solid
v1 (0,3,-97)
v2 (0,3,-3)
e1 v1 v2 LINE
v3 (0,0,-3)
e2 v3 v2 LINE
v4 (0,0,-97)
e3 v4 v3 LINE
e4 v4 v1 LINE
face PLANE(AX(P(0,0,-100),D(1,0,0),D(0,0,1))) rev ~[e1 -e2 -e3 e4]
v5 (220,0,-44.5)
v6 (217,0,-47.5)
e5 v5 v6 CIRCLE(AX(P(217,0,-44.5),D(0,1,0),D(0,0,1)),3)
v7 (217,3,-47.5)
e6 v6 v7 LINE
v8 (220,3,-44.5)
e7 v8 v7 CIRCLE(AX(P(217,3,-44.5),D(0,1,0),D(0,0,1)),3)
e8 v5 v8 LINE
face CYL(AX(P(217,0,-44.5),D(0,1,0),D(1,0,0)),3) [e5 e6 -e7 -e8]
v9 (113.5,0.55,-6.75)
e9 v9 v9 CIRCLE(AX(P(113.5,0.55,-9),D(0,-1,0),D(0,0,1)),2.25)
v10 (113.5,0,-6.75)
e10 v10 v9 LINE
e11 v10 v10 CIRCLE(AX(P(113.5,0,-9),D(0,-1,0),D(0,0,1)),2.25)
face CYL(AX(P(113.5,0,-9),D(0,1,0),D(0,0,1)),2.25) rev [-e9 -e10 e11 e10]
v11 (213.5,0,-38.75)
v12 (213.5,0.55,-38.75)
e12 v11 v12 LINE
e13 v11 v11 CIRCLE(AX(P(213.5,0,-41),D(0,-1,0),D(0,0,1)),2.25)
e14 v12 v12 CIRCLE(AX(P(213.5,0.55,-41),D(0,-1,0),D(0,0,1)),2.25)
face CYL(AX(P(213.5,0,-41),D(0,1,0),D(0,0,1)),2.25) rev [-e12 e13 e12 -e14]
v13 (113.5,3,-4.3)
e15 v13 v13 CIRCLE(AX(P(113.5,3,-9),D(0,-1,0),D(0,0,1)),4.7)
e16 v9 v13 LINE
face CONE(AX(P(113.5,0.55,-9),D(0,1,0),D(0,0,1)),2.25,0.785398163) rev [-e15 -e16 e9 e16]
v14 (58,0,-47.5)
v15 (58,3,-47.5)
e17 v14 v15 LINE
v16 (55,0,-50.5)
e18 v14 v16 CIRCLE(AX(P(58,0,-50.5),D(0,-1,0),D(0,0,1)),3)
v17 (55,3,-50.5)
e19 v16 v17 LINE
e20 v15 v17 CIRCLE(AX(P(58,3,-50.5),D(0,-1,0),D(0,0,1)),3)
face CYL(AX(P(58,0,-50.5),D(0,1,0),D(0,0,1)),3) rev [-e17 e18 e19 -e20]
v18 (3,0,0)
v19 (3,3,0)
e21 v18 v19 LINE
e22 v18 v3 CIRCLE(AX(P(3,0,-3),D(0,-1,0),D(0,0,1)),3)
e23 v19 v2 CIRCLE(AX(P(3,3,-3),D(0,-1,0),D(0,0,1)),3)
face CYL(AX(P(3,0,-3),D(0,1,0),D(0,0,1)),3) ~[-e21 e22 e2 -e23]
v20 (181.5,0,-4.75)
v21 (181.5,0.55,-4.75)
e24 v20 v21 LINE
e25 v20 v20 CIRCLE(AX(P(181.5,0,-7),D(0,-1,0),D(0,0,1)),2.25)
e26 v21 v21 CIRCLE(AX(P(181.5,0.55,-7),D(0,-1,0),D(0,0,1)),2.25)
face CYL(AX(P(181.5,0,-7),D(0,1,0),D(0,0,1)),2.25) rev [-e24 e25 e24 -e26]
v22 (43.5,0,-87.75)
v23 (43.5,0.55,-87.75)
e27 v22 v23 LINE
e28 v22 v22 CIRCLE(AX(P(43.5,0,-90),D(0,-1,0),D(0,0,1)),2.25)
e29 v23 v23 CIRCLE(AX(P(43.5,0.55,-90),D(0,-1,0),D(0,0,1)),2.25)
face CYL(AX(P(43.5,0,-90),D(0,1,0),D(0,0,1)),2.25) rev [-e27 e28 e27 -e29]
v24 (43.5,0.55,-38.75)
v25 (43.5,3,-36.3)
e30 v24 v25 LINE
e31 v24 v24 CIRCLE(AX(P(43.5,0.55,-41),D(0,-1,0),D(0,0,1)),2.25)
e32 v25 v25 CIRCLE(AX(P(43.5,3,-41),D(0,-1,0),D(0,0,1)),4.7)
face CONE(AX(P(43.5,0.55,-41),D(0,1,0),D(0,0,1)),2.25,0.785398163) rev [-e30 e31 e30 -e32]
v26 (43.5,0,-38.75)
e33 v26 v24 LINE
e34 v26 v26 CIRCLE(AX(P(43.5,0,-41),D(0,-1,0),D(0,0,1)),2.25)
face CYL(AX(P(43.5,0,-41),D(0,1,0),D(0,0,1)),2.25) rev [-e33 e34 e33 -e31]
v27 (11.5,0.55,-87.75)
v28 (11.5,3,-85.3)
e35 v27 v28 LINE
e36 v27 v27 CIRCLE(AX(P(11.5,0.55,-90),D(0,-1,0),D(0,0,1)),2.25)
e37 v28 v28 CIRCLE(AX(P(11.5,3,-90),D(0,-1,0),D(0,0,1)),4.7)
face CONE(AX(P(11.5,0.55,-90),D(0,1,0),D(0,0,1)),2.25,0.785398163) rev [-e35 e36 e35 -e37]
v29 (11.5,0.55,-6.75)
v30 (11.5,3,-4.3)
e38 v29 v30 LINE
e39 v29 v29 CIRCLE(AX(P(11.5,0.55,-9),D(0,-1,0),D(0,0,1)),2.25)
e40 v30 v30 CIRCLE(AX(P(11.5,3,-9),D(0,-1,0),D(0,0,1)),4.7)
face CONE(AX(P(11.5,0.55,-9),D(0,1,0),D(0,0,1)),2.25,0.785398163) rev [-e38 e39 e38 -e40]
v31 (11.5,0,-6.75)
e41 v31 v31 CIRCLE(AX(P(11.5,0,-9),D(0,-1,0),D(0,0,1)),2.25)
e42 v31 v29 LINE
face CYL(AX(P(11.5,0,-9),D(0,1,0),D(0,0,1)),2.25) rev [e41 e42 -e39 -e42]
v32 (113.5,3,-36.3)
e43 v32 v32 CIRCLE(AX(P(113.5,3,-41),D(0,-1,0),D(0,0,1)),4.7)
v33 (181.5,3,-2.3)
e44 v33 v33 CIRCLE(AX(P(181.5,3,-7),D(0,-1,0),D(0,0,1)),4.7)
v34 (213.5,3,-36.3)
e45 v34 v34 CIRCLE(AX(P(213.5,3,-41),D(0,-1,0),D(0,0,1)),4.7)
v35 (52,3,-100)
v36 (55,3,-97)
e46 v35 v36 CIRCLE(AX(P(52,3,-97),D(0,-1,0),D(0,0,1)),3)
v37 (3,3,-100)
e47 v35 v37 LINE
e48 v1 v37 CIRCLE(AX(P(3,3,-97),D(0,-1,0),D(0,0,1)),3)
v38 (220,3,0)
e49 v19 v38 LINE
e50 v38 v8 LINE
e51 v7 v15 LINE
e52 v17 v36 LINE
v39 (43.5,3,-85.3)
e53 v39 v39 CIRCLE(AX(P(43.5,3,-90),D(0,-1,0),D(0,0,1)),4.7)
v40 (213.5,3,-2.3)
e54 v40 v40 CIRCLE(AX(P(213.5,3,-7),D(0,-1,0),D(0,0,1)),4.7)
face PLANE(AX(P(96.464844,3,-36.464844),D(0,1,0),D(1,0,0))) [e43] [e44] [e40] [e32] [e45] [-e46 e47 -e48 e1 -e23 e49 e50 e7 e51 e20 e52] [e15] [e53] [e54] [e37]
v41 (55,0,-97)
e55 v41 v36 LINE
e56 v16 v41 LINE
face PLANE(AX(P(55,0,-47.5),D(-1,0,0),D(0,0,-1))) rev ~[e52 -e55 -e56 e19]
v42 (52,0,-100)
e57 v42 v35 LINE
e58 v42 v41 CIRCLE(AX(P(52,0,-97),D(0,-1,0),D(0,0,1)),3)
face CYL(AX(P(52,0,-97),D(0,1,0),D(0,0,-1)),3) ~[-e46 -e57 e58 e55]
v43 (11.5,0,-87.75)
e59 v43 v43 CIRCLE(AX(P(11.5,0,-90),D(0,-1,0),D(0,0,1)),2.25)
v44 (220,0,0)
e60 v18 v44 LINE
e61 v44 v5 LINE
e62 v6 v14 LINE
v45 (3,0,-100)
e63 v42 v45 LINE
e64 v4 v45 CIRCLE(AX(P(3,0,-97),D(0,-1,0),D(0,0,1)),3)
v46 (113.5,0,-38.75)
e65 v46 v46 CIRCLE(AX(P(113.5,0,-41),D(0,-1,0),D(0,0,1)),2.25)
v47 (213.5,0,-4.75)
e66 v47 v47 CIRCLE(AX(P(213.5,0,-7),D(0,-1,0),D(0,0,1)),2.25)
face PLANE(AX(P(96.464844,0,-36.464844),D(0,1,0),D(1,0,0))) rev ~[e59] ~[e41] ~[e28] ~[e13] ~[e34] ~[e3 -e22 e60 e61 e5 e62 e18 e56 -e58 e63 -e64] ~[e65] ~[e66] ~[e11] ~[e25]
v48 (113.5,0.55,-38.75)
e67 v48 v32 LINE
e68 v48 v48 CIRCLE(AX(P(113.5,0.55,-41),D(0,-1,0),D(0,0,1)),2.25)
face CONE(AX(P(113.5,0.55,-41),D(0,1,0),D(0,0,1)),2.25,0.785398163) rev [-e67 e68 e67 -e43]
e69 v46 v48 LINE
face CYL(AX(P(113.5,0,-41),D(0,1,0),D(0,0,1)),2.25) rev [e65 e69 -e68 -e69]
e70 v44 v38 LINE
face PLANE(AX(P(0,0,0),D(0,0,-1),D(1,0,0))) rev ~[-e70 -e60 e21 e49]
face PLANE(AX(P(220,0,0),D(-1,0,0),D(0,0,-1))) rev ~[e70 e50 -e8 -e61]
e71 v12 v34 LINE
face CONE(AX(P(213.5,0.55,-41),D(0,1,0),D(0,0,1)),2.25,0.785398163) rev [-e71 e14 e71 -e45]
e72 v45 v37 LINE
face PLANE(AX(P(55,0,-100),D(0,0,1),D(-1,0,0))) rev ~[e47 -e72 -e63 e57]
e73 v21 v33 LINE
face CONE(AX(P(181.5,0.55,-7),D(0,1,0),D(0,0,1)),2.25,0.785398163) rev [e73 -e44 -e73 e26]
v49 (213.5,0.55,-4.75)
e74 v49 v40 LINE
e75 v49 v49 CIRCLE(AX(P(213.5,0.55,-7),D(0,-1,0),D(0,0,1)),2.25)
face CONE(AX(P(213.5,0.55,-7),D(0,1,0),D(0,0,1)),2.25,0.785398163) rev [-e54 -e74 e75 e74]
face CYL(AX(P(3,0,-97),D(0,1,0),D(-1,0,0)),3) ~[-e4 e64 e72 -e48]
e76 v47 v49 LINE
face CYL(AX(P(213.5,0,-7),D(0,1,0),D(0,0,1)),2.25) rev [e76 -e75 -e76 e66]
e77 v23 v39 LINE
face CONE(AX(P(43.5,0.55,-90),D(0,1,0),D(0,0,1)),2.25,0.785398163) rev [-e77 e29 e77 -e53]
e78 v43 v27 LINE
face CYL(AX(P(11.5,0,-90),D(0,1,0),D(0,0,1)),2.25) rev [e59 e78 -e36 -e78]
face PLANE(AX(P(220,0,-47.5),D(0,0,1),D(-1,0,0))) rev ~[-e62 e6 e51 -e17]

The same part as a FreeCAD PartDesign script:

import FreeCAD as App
import Part
import Sketcher
from FreeCAD import Vector
Q = App.Units.Quantity


def edges_at(feature, points):
    """Names of the edges that pass closest to the given points."""
    edges = feature.Shape.Edges
    near = lambda p: min(range(len(edges)), key=lambda i: edges[i].distToShape(Part.Vertex(*p))[0])
    return sorted({f"Edge{near(p) + 1}" for p in points})

doc = App.newDocument("Part")
body = doc.addObject("PartDesign::Body", "Body")

sketch1 = body.newObject("Sketcher::SketchObject", "Sketch")
sketch1.AttachmentSupport = (doc.getObject("XZ_Plane"), [""])
sketch1.MapMode = "FlatFace"
sketch1.addGeometry([
    Part.LineSegment(Vector(0, 0, 0), Vector(220, 0, 0)),
    Part.LineSegment(Vector(220, 0, 0), Vector(220, -48, 0)),
    Part.LineSegment(Vector(220, -48, 0), Vector(55, -48, 0)),
    Part.LineSegment(Vector(55, -48, 0), Vector(55, -100, 0)),
    Part.LineSegment(Vector(55, -100, 0), Vector(0, -100, 0)),
    Part.LineSegment(Vector(0, -100, 0), Vector(0, 0, 0)),
], False)
sketch1.addConstraint([
    Sketcher.Constraint("Coincident", 0, 2, 1, 1),
    Sketcher.Constraint("Coincident", 1, 2, 2, 1),
    Sketcher.Constraint("Coincident", 2, 2, 3, 1),
    Sketcher.Constraint("Coincident", 3, 2, 4, 1),
    Sketcher.Constraint("Coincident", 4, 2, 5, 1),
    Sketcher.Constraint("Coincident", 5, 2, 0, 1),
    Sketcher.Constraint("Horizontal", 0),
    Sketcher.Constraint("Vertical", 1),
    Sketcher.Constraint("Horizontal", 2),
    Sketcher.Constraint("Vertical", 3),
    Sketcher.Constraint("Horizontal", 4),
    Sketcher.Constraint("Vertical", 5),
    Sketcher.Constraint("Coincident", 5, 2, -1, 1),
    Sketcher.Constraint("DistanceX", 0, 1, 0, 2, 220.0),
    Sketcher.Constraint("DistanceX", 2, 2, 2, 1, 165.0),
    Sketcher.Constraint("DistanceY", 5, 1, 5, 2, 100.0),
    Sketcher.Constraint("DistanceY", 1, 2, 1, 1, 47.5),
])
pad1 = body.newObject("PartDesign::Pad", "Pad")
pad1.Profile = sketch1
pad1.Length = 3
pad1.Reversed = True

sketch2 = body.newObject("Sketcher::SketchObject", "Sketch001")
sketch2.AttachmentSupport = (doc.getObject("YZ_Plane"), [""])
sketch2.MapMode = "FlatFace"
sketch2.AttachmentOffset = App.Placement(Vector(0, 0, 11.5), App.Rotation())
sketch2.addGeometry([
    Part.LineSegment(Vector(0, -90, 0), Vector(3, -90, 0)),
    Part.LineSegment(Vector(3, -90, 0), Vector(3, -85.3, 0)),
    Part.LineSegment(Vector(3, -85.3, 0), Vector(0.6, -87.8, 0)),
    Part.LineSegment(Vector(0.6, -87.8, 0), Vector(0, -87.8, 0)),
    Part.LineSegment(Vector(0, -87.8, 0), Vector(0, -90, 0)),
], False)
sketch2.addGeometry(Part.LineSegment(Vector(3, -90, 0), Vector(0, -90, 0)), True)
sketch2.addConstraint([
    Sketcher.Constraint("Coincident", 0, 2, 1, 1),
    Sketcher.Constraint("Coincident", 1, 2, 2, 1),
    Sketcher.Constraint("Coincident", 2, 2, 3, 1),
    Sketcher.Constraint("Coincident", 3, 2, 4, 1),
    Sketcher.Constraint("Coincident", 4, 2, 0, 1),
    Sketcher.Constraint("Horizontal", 0),
    Sketcher.Constraint("Vertical", 1),
    Sketcher.Constraint("Horizontal", 3),
    Sketcher.Constraint("Vertical", 4),
    Sketcher.Constraint("Horizontal", 5),
    Sketcher.Constraint("Coincident", 5, 1, 0, 2),
    Sketcher.Constraint("PointOnObject", 3, 2, -2),
    Sketcher.Constraint("PointOnObject", 5, 2, -2),
    Sketcher.Constraint("DistanceX", 0, 1, 0, 2, 3.0),
    Sketcher.Constraint("Angle", 2, Q("-135 deg")),
    Sketcher.Constraint("DistanceY", 1, 1, 1, 2, 4.7),
    Sketcher.Constraint("DistanceY", 0, 2, -1, 1, 90.0),
    Sketcher.Constraint("DistanceX", 3, 2, 3, 1, 0.55),
])
groove = body.newObject("PartDesign::Groove", "Groove")
groove.Profile = sketch2
groove.ReferenceAxis = (sketch2, ["Axis0"])
groove.Angle = 360
doc.recompute()

linearpattern = body.newObject("PartDesign::LinearPattern", "LinearPattern")
linearpattern.Originals = [groove]
linearpattern.Direction = (doc.getObject("Z_Axis"), [""])
linearpattern.Mode = "offset"
linearpattern.Offset = 81
linearpattern.Occurrences = 2
body.Tip = linearpattern
doc.recompute()

datumline = body.newObject("PartDesign::Line", "DatumLine")
datumline.Placement = App.Placement(Vector(0, 0, 0), App.Rotation(Vector(0, 0, 1), Vector(0.546788901, 0, 0.837270505)))
linearpattern2 = body.newObject("PartDesign::LinearPattern", "LinearPattern001")
linearpattern2.Originals = [groove]
linearpattern2.Direction = (datumline, [""])
linearpattern2.Mode = "offset"
linearpattern2.Offset = 58.5235
linearpattern2.Occurrences = 2
body.Tip = linearpattern2
doc.recompute()

linearpattern3 = body.newObject("PartDesign::LinearPattern", "LinearPattern002")
linearpattern3.Originals = [groove]
linearpattern3.Direction = (doc.getObject("X_Axis"), [""])
linearpattern3.Mode = "offset"
linearpattern3.Offset = 32
linearpattern3.Occurrences = 2
body.Tip = linearpattern3
doc.recompute()

datumline2 = body.newObject("PartDesign::Line", "DatumLine001")
datumline2.Placement = App.Placement(Vector(0, 0, 0), App.Rotation(Vector(0, 0, 1), Vector(0.901385111, 0, 0.433018338)))
linearpattern4 = body.newObject("PartDesign::LinearPattern", "LinearPattern003")
linearpattern4.Originals = [groove]
linearpattern4.Direction = (datumline2, [""])
linearpattern4.Mode = "offset"
linearpattern4.Offset = 113.15918
linearpattern4.Occurrences = 2
body.Tip = linearpattern4
doc.recompute()

datumline3 = body.newObject("PartDesign::Line", "DatumLine002")
datumline3.Placement = App.Placement(Vector(0, 0, 0), App.Rotation(Vector(0, 0, 1), Vector(0.783110847, 0, 0.621882144)))
linearpattern5 = body.newObject("PartDesign::LinearPattern", "LinearPattern004")
linearpattern5.Originals = [groove]
linearpattern5.Direction = (datumline3, [""])
linearpattern5.Mode = "offset"
linearpattern5.Offset = 130.24976
linearpattern5.Occurrences = 2
body.Tip = linearpattern5
doc.recompute()

datumline4 = body.newObject("PartDesign::Line", "DatumLine003")
datumline4.Placement = App.Placement(Vector(0, 0, 0), App.Rotation(Vector(0, 0, 1), Vector(0.898615984, 0, 0.43873604)))
linearpattern6 = body.newObject("PartDesign::LinearPattern", "LinearPattern005")
linearpattern6.Originals = [groove]
linearpattern6.Direction = (datumline4, [""])
linearpattern6.Mode = "offset"
linearpattern6.Offset = 189.179809
linearpattern6.Occurrences = 2
body.Tip = linearpattern6
doc.recompute()

datumline5 = body.newObject("PartDesign::Line", "DatumLine004")
datumline5.Placement = App.Placement(Vector(0, 0, 0), App.Rotation(Vector(0, 0, 1), Vector(0.924962336, 0, 0.380058782)))
linearpattern7 = body.newObject("PartDesign::LinearPattern", "LinearPattern006")
linearpattern7.Originals = [groove]
linearpattern7.Direction = (datumline5, [""])
linearpattern7.Mode = "offset"
linearpattern7.Offset = 218.387271
linearpattern7.Occurrences = 2
body.Tip = linearpattern7
doc.recompute()

datumline6 = body.newObject("PartDesign::Line", "DatumLine005")
datumline6.Placement = App.Placement(Vector(0, 0, 0), App.Rotation(Vector(0, 0, 1), Vector(0.971816715, 0, 0.235737718)))
linearpattern8 = body.newObject("PartDesign::LinearPattern", "LinearPattern007")
linearpattern8.Originals = [groove]
linearpattern8.Direction = (datumline6, [""])
linearpattern8.Mode = "offset"
linearpattern8.Offset = 207.858125
linearpattern8.Occurrences = 2
body.Tip = linearpattern8
doc.recompute()

fillet = body.newObject("PartDesign::Fillet", "Fillet")
fillet.Base = (linearpattern8, edges_at(linearpattern8, [
    (0, 1.5, -100),
    (55, 1.5, -100),
    (55, 1.5, -47.5),
    (220, 1.5, -47.5),
    (0, 1.5, 0),
]))
fillet.Radius = 3

doc.recompute()
